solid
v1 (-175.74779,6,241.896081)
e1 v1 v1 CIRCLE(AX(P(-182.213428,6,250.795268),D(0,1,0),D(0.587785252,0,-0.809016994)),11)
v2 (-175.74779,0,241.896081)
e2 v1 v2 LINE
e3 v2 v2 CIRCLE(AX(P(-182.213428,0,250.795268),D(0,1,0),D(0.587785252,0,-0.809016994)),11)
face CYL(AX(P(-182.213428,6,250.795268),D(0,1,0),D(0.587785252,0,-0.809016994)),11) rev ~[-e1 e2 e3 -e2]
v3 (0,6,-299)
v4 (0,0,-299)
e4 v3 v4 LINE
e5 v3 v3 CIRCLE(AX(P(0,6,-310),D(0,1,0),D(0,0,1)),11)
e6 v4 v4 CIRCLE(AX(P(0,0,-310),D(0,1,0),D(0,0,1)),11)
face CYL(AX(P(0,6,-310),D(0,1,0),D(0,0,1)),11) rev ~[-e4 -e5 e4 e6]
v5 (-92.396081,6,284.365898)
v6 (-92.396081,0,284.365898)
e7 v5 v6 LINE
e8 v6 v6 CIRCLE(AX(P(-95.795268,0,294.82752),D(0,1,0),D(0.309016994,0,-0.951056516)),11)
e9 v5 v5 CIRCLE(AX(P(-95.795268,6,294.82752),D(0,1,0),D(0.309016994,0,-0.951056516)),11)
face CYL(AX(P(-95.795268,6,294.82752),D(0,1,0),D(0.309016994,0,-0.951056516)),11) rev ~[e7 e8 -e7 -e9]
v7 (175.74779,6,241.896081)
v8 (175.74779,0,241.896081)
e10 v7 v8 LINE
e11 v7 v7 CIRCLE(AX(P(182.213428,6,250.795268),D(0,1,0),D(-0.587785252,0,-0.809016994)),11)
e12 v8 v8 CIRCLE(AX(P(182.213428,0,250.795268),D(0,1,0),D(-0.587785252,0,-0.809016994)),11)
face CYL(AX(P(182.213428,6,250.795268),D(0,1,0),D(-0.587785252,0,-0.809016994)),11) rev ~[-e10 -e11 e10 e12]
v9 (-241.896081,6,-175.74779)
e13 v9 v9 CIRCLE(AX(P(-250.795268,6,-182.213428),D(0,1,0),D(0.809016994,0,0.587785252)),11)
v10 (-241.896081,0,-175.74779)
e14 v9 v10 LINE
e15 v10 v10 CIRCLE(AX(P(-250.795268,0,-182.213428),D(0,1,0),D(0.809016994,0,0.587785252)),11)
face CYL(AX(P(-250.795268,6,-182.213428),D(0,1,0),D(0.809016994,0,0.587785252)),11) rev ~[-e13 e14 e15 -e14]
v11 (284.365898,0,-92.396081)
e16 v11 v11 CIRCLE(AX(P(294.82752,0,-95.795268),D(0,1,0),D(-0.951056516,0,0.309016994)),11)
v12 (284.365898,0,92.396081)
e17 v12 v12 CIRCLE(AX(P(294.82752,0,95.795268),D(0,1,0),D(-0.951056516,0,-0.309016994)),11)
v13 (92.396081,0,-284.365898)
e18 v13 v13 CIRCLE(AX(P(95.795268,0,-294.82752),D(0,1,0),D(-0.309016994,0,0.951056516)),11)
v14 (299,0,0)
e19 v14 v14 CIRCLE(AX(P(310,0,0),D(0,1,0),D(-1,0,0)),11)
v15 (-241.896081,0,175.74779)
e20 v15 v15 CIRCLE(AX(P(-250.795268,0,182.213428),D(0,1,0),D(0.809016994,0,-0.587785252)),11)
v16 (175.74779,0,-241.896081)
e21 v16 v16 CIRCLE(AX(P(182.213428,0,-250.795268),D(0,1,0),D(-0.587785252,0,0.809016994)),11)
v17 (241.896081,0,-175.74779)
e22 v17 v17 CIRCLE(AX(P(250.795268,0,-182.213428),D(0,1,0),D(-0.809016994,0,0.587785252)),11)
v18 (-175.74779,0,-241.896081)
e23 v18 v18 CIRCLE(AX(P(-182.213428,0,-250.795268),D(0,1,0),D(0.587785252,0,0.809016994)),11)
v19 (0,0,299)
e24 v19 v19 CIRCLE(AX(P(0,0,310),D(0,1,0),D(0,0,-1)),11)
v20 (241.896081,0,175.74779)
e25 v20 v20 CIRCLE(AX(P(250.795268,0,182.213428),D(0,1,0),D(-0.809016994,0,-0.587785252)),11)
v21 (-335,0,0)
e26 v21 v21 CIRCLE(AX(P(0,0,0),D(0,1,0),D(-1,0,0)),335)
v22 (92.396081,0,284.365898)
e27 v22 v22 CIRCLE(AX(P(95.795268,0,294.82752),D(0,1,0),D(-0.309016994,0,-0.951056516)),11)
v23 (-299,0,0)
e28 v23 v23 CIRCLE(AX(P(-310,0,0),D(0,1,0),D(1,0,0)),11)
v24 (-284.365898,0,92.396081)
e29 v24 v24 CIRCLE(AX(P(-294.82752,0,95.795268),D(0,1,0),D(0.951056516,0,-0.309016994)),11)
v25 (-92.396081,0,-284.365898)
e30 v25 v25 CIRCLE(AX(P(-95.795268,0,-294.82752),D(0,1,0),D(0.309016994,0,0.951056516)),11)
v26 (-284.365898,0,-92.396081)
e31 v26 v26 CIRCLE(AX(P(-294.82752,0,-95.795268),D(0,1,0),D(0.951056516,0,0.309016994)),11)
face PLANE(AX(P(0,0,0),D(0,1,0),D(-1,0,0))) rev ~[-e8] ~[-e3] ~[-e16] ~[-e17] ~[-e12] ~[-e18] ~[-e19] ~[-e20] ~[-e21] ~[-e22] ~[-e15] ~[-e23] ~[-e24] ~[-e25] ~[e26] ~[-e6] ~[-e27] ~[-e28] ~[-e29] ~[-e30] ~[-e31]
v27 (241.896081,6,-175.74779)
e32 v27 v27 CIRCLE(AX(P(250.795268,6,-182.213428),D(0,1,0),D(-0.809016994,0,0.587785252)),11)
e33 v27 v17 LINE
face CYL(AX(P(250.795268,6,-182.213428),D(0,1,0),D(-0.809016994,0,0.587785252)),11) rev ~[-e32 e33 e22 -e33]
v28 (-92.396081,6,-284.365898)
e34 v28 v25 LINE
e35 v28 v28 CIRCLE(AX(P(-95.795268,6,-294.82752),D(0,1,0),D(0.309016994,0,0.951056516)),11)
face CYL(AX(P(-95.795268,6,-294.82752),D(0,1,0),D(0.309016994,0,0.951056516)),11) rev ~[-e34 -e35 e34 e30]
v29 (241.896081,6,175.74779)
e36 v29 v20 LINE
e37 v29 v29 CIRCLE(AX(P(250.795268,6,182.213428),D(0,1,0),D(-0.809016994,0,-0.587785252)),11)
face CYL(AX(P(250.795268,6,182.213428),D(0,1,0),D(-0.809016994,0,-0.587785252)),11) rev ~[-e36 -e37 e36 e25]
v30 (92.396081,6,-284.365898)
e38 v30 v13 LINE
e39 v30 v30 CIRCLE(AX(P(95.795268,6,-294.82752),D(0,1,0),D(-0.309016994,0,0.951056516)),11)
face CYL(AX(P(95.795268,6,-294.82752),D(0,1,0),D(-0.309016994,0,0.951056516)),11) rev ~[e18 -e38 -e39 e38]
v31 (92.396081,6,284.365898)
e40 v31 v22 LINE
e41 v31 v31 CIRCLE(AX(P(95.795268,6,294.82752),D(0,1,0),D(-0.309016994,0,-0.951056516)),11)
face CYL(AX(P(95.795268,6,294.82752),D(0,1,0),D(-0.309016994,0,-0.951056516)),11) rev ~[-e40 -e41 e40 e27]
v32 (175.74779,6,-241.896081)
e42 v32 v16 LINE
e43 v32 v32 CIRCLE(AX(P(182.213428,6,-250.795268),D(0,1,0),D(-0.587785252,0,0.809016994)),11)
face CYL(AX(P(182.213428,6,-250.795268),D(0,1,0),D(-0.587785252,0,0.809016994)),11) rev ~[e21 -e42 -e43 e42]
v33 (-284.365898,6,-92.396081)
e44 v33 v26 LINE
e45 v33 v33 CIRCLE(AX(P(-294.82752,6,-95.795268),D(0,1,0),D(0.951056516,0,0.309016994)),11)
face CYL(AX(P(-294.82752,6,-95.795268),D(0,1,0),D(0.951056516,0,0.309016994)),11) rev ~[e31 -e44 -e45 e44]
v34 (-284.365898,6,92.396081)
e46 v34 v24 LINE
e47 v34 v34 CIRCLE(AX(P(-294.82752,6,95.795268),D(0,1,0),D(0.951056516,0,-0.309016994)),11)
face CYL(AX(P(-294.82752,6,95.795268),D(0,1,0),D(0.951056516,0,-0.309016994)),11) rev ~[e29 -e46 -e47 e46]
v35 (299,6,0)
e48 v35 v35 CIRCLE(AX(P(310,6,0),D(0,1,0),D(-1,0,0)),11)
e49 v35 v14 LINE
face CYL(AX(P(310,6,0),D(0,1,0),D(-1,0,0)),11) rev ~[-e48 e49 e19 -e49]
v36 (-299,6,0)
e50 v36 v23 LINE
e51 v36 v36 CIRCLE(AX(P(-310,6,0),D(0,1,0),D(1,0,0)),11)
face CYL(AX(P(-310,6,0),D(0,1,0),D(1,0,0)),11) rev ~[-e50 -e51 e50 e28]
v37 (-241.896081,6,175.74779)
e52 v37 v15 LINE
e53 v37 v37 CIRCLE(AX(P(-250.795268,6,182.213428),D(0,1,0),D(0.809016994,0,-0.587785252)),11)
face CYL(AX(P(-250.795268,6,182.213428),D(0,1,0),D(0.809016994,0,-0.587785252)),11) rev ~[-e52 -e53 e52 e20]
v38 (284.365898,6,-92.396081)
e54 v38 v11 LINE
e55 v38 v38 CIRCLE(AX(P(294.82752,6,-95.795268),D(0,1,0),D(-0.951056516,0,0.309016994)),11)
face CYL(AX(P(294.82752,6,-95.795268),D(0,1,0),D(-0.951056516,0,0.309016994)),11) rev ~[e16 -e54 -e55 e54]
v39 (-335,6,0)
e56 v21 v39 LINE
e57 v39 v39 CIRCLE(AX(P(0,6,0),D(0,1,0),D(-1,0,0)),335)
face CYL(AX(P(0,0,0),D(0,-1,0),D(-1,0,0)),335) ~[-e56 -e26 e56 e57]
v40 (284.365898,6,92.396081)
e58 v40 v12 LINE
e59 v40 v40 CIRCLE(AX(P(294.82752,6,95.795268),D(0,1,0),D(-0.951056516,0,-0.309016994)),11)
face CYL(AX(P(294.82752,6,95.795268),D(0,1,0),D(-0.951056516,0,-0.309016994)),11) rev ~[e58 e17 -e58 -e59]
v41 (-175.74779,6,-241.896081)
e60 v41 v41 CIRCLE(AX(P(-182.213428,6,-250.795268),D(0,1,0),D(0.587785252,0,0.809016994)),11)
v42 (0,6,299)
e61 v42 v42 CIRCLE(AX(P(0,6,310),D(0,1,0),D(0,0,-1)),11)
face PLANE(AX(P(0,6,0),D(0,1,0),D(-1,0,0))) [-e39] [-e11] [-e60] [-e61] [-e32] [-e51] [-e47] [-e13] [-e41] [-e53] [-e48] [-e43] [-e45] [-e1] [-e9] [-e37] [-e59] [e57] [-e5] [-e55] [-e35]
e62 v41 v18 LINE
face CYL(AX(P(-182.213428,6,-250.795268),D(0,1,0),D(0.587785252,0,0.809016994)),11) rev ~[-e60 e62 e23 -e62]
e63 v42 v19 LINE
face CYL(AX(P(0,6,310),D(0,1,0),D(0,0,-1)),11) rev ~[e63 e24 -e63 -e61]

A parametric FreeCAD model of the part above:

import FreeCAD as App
import Part
import Sketcher
Q = App.Units.Quantity

doc = App.newDocument("Part")
body = doc.addObject("PartDesign::Body", "Body")

sketch1 = body.newObject("Sketcher::SketchObject", "Sketch")
sketch1.AttachmentSupport = (doc.getObject("XZ_Plane"), [""])
sketch1.MapMode = "FlatFace"
sketch1.addGeometry(Part.Circle(App.Vector(0, 0, 0), App.Vector(0, 0, 1), 335), False)
sketch1.addConstraint(Sketcher.Constraint("Coincident", 0, 3, -1, 1))
sketch1.addConstraint(Sketcher.Constraint("Diameter", 0, Q("670 mm")))
pad1 = body.newObject("PartDesign::Pad", "Pad")
pad1.Profile = sketch1
pad1.Length = 6
pad1.Reversed = True

sketch2 = body.newObject("Sketcher::SketchObject", "Sketch001")
sketch2.AttachmentSupport = (doc.getObject("XZ_Plane"), [""])
sketch2.MapMode = "FlatFace"
sketch2.AttachmentOffset = App.Placement(App.Vector(0, 0, -6), App.Rotation())
sketch2.addGeometry(Part.Circle(App.Vector(-310, 0, 0), App.Vector(0, 0, 1), 11), False)
sketch2.addConstraint(Sketcher.Constraint("PointOnObject", 0, 3, -1))
sketch2.addConstraint(Sketcher.Constraint("Diameter", 0, Q("22 mm")))
sketch2.addConstraint(Sketcher.Constraint("DistanceX", 0, 3, -1, 1, Q("310 mm")))
pocket1 = body.newObject("PartDesign::Pocket", "Pocket")
pocket1.Profile = sketch2
pocket1.Length = 8
pocket1.Reversed = True
doc.recompute()

polarpattern = body.newObject("PartDesign::PolarPattern", "PolarPattern")
polarpattern.Originals = [pocket1]
polarpattern.Axis = (doc.getObject("Y_Axis"), [""])
polarpattern.Angle = 360
polarpattern.Occurrences = 20
body.Tip = polarpattern

doc.recompute()
